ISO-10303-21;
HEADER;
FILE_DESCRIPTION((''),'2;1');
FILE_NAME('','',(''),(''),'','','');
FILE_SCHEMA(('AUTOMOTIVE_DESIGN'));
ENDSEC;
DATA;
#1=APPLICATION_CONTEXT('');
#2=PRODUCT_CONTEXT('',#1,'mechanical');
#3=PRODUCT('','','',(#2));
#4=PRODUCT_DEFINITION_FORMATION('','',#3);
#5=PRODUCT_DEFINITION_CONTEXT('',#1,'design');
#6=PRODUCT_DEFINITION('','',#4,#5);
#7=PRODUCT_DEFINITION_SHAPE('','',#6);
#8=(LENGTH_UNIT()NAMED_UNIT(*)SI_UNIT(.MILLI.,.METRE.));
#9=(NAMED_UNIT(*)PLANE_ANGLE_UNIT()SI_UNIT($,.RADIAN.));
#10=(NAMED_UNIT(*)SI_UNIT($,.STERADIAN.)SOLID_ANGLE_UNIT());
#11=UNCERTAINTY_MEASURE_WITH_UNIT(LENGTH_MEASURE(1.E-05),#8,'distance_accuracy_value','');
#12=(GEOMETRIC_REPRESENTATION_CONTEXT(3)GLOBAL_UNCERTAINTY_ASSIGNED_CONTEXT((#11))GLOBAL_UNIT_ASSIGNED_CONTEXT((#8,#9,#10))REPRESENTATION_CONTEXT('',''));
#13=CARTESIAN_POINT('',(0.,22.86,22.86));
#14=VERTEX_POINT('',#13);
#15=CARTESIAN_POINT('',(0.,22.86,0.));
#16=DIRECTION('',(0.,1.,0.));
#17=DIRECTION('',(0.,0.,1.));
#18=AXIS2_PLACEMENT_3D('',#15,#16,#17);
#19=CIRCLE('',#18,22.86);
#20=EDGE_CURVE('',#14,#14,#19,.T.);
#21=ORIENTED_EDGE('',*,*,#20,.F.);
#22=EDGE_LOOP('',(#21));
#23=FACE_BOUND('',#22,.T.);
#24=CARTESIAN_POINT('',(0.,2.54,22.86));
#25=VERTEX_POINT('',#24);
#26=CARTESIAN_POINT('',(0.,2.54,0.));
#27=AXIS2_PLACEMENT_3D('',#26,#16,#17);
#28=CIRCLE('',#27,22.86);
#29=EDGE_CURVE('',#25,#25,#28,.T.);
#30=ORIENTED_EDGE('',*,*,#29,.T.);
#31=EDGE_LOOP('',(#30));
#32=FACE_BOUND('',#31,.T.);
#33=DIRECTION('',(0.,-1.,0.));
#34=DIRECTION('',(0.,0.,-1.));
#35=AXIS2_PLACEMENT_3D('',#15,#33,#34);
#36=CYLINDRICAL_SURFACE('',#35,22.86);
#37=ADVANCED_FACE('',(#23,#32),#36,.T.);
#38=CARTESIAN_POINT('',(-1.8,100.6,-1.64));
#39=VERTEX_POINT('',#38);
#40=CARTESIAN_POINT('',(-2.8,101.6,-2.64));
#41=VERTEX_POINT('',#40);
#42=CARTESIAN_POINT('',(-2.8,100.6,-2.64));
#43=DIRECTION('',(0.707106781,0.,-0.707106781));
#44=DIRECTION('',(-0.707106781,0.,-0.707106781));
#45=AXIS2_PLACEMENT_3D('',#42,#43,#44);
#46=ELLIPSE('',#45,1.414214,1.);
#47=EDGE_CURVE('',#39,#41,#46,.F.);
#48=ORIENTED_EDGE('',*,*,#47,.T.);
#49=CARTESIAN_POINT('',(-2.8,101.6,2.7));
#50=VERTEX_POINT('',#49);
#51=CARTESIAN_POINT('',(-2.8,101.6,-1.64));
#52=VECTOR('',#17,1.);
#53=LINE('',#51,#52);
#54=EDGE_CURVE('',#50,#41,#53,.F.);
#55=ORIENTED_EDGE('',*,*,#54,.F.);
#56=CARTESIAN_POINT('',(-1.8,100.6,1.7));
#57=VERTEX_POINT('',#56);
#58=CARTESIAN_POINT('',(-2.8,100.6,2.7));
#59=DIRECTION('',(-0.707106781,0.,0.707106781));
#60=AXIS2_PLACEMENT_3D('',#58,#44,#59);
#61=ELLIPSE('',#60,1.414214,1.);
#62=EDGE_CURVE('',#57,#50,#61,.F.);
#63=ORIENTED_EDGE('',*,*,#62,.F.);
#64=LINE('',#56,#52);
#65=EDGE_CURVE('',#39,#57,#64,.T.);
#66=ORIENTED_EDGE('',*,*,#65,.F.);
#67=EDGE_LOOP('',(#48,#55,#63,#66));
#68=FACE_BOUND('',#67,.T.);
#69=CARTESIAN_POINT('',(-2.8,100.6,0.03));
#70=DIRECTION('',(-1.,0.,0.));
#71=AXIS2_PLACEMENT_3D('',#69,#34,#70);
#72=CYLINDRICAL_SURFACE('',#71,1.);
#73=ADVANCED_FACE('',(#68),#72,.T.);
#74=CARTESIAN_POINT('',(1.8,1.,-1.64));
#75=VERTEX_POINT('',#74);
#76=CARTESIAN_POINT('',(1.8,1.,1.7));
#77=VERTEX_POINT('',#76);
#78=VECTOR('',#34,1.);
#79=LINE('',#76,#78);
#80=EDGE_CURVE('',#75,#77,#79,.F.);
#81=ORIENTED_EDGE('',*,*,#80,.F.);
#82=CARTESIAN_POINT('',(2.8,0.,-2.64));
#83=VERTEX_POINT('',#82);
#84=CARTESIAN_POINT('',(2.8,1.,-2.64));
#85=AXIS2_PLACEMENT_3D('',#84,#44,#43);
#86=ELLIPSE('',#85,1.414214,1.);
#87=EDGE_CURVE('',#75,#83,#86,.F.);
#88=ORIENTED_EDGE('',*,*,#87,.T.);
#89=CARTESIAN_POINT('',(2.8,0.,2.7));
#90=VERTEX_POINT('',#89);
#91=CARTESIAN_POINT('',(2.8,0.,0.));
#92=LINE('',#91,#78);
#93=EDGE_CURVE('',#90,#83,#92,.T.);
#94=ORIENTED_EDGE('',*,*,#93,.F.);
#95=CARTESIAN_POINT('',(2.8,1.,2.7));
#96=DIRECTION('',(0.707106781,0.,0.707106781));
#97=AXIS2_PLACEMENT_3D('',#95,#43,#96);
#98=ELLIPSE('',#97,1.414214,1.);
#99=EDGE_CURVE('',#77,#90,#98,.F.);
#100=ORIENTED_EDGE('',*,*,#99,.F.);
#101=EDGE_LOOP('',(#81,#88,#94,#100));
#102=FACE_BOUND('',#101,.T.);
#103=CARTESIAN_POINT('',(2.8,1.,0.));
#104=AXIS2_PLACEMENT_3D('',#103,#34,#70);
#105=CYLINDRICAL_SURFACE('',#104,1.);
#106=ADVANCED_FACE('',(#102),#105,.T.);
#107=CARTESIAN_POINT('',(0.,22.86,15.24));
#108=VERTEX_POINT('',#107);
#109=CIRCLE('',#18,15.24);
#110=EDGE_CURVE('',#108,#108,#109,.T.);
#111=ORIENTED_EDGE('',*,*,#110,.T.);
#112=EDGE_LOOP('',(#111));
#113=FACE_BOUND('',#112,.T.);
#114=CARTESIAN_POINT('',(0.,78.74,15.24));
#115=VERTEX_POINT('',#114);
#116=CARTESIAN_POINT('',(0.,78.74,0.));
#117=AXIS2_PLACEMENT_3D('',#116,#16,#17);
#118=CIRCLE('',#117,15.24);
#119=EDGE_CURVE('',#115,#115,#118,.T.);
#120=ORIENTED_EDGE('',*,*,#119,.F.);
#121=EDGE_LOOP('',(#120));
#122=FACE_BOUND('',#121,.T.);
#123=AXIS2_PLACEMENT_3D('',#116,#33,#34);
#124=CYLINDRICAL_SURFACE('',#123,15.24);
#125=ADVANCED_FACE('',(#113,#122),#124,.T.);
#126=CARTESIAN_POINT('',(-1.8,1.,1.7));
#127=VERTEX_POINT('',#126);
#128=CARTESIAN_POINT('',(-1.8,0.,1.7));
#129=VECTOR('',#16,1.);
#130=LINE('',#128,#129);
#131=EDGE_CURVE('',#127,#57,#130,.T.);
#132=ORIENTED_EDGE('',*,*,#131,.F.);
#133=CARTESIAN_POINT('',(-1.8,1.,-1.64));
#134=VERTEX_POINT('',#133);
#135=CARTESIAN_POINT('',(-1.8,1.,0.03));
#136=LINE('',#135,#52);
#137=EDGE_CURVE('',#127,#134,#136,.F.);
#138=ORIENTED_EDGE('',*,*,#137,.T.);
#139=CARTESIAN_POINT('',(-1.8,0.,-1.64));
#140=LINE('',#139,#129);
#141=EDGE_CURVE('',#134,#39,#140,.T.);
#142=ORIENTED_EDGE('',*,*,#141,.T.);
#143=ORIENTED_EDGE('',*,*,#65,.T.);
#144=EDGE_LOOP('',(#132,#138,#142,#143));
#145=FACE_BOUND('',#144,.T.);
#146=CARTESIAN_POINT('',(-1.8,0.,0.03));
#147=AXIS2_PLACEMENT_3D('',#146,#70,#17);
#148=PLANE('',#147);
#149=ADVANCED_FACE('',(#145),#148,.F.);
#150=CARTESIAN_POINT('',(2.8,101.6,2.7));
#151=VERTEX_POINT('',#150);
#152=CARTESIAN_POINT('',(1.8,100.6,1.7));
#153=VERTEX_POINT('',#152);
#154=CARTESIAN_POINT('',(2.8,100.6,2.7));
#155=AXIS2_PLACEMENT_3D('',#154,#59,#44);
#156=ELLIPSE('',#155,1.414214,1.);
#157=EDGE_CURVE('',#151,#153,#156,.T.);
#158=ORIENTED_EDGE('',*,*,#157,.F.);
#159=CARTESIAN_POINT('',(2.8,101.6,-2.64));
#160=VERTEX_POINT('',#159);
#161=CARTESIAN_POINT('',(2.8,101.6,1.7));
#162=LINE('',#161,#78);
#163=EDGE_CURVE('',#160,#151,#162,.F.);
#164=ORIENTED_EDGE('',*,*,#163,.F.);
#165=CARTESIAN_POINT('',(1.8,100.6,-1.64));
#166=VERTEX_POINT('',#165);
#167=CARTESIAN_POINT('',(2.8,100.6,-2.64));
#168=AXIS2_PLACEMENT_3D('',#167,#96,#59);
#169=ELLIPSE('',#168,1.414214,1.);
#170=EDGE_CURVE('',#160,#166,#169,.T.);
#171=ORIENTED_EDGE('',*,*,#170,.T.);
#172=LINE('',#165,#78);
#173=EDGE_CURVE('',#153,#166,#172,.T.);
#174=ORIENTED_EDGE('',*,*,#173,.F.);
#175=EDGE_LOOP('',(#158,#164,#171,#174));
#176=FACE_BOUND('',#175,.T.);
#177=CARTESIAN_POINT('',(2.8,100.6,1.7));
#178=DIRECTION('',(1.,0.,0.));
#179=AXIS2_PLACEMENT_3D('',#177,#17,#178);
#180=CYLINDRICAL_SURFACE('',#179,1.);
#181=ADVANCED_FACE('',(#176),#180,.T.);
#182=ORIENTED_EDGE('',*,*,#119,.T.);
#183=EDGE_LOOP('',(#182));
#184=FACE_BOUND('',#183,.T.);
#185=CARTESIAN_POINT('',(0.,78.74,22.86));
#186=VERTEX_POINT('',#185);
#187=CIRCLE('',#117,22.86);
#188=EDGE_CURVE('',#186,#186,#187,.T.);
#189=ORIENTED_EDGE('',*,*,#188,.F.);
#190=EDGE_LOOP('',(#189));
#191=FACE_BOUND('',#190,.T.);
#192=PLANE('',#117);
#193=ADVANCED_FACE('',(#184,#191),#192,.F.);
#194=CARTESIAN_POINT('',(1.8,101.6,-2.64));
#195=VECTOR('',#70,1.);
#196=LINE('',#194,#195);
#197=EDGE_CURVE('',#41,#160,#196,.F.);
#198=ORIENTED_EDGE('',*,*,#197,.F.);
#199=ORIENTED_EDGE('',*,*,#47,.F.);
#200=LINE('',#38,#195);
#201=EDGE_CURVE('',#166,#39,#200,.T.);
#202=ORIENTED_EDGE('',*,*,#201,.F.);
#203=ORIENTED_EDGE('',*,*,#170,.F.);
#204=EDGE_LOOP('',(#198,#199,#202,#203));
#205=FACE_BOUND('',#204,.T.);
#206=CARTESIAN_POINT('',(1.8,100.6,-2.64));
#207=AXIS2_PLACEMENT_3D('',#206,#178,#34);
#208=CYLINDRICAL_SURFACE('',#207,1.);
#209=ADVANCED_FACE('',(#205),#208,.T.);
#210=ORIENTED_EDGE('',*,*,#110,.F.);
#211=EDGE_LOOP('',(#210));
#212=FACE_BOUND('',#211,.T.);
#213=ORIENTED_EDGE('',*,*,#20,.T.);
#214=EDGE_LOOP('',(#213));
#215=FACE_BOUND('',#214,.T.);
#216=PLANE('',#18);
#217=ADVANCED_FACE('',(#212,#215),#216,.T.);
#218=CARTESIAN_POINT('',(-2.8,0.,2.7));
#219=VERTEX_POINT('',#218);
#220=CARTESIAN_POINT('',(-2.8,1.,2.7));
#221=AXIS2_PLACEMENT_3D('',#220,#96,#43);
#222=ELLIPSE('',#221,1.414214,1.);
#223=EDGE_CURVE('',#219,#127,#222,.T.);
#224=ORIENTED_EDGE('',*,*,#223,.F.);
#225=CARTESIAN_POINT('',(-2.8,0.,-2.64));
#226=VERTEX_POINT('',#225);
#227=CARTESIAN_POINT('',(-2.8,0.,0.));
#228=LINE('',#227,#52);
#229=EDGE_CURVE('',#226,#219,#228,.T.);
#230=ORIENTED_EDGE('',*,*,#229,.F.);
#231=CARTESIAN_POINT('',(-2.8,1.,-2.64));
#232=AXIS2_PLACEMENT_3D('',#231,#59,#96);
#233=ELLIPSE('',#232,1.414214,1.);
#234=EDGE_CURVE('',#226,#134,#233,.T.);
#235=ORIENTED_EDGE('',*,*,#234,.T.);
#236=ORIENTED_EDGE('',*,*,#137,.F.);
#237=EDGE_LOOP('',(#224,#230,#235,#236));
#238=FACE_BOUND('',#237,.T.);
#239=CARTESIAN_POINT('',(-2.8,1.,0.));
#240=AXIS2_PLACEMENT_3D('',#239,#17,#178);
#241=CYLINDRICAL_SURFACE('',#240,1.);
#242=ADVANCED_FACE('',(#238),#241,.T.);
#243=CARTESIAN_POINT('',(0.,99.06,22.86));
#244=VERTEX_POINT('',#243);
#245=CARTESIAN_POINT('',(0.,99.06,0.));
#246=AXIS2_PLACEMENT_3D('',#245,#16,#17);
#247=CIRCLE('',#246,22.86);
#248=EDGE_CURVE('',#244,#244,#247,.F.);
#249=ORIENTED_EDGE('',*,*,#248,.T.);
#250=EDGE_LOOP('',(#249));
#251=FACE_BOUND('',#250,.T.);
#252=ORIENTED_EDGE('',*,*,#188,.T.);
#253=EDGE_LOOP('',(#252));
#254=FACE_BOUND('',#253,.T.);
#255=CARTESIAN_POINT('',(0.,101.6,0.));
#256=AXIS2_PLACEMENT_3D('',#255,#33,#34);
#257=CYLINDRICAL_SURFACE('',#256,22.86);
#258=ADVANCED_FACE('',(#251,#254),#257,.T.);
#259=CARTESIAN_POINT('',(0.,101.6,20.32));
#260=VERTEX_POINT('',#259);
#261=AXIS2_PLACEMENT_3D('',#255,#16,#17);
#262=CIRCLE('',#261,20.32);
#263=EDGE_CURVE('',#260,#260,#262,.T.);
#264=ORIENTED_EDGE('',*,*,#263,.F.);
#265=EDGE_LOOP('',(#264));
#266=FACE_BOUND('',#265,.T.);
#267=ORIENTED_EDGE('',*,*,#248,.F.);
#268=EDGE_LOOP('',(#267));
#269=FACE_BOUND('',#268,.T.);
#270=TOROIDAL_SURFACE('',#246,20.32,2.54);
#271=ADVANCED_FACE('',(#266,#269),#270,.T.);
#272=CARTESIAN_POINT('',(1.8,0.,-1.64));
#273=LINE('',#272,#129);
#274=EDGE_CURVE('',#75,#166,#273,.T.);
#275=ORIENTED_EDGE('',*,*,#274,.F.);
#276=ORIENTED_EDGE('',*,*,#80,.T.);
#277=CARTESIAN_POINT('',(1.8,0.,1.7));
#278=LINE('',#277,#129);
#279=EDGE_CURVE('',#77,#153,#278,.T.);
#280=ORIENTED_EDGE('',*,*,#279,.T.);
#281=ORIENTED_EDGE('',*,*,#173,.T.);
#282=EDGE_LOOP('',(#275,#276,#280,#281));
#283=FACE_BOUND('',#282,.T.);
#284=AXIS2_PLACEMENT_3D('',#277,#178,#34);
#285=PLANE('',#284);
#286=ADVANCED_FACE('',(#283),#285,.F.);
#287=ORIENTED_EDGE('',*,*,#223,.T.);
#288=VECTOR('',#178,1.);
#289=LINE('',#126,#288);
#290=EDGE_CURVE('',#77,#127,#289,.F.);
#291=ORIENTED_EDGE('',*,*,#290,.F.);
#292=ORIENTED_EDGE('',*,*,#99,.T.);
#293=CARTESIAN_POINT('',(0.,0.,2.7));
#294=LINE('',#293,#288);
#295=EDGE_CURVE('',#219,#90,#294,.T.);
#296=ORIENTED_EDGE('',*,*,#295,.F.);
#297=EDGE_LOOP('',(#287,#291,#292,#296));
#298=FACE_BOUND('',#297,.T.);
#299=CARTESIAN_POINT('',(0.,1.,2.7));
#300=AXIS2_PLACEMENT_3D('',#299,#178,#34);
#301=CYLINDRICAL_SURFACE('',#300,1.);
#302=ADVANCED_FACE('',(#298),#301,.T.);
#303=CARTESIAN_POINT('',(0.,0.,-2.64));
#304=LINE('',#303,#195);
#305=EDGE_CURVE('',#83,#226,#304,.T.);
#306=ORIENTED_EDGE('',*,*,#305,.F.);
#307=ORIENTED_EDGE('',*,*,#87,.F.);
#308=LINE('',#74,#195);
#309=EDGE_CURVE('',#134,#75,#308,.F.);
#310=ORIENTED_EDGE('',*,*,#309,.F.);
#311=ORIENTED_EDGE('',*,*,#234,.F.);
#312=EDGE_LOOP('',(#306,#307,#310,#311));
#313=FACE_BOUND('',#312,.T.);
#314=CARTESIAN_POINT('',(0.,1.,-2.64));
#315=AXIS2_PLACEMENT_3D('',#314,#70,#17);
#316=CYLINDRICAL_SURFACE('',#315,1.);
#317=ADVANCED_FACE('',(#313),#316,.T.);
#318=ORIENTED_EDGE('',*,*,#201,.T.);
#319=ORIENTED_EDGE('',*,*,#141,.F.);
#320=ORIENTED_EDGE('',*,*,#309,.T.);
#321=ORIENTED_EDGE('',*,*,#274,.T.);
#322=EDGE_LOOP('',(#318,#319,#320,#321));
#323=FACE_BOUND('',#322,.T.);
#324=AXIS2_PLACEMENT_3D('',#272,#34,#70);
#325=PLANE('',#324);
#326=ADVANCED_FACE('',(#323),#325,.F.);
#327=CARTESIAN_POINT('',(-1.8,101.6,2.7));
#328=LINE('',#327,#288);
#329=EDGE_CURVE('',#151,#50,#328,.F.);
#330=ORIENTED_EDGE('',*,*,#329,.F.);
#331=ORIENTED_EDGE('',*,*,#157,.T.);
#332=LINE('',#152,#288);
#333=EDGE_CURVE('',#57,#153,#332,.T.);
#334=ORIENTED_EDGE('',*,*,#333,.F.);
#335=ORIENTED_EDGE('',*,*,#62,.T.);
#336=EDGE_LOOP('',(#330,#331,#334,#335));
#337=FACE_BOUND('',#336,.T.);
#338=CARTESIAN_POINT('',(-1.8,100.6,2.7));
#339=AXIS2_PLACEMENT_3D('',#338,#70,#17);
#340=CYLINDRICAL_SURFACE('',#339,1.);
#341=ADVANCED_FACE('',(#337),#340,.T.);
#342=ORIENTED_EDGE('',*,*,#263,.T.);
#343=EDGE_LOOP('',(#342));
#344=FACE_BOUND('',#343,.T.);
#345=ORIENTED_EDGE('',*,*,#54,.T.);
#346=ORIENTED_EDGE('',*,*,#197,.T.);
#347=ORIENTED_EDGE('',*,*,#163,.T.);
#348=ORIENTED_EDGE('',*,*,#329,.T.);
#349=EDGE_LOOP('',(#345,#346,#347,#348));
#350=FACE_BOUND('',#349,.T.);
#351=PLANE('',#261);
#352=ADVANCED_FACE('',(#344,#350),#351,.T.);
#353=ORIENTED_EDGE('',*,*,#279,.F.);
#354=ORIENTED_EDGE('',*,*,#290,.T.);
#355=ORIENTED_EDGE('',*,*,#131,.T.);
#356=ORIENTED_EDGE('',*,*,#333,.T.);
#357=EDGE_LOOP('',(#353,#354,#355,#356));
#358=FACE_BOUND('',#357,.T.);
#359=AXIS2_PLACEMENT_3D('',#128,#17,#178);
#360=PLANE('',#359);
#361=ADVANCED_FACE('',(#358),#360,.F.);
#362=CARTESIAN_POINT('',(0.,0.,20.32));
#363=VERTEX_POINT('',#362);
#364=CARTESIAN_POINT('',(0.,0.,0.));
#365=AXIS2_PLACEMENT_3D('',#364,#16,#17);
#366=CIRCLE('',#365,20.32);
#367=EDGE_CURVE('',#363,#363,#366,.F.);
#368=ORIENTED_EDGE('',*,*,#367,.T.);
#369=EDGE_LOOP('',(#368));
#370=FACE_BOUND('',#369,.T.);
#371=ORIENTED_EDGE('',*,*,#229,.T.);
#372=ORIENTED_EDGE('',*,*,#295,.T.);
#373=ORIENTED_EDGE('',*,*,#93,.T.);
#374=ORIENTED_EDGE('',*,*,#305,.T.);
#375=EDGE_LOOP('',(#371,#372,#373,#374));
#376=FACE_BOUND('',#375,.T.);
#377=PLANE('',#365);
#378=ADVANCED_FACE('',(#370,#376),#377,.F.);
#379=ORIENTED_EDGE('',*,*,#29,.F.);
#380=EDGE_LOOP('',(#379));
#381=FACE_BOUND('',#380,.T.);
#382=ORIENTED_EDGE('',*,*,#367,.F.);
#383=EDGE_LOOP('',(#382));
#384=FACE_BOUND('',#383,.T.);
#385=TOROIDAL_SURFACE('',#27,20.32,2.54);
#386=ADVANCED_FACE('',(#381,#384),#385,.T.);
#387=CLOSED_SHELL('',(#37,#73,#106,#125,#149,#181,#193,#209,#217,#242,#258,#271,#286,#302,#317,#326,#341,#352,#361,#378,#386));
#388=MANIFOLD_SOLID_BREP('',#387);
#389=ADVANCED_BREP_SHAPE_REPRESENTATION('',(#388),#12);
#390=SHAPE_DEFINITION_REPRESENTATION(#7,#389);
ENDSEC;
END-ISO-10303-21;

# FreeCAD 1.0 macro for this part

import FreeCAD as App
import Part
import Sketcher
Q = App.Units.Quantity


def edges_at(feature, points):
    """Names of the edges that pass closest to the given points."""
    edges = feature.Shape.Edges
    near = lambda p: min(range(len(edges)), key=lambda i: edges[i].distToShape(Part.Vertex(*p))[0])
    return sorted({f"Edge{near(p) + 1}" for p in points})


def add_polygon(sketch, points):
    """Adds a closed chain of lines whose ends are joined by coincident constraints."""
    first, n = sketch.GeometryCount, len(points)
    for a, b in zip(points, points[1:] + points[:1]):
        sketch.addGeometry(Part.LineSegment(App.Vector(*a, 0), App.Vector(*b, 0)), False)
    for i in range(n):
        sketch.addConstraint(Sketcher.Constraint("Coincident", first + i, 2, first + (i + 1) % n, 1))

doc = App.newDocument("Part")
body = doc.addObject("PartDesign::Body", "Body")

# Sketch on XZ plane
sketch1 = body.newObject("Sketcher::SketchObject", "Sketch")
sketch1.AttachmentSupport = (doc.getObject("XZ_Plane"), [""])
sketch1.MapMode = "FlatFace"
sketch1.addGeometry(Part.Circle(App.Vector(0, 0, 0), App.Vector(0, 0, 1), 23), False)
sketch1.addConstraint([
    Sketcher.Constraint("Coincident", 0, 3, -1, 1),
    Sketcher.Constraint("Diameter", 0, Q("1.8 in")),
])
pad1 = body.newObject("PartDesign::Pad", "Pad")
pad1.Profile = sketch1
pad1.Length = Q("0.9 in")
pad1.Reversed = True

# Sketch on XZ plane
sketch2 = body.newObject("Sketcher::SketchObject", "Sketch001")
sketch2.AttachmentSupport = (doc.getObject("XZ_Plane"), [""])
sketch2.MapMode = "FlatFace"
sketch2.AttachmentOffset = App.Placement(App.Vector(0, 0, -0.9 * 25.4), App.Rotation())
sketch2.addGeometry(Part.Circle(App.Vector(0, 0, 0), App.Vector(0, 0, 1), 15), False)
sketch2.addConstraint([
    Sketcher.Constraint("Coincident", 0, 3, -1, 1),
    Sketcher.Constraint("Diameter", 0, Q("1.2 in")),
])
pad2 = body.newObject("PartDesign::Pad", "Pad001")
pad2.Profile = sketch2
pad2.Length = Q("2.2 in")
pad2.Reversed = True

# Sketch on XZ plane
sketch3 = body.newObject("Sketcher::SketchObject", "Sketch002")
sketch3.AttachmentSupport = (doc.getObject("XZ_Plane"), [""])
sketch3.MapMode = "FlatFace"
sketch3.AttachmentOffset = App.Placement(App.Vector(0, 0, -3.1 * 25.4), App.Rotation())
sketch3.addGeometry(Part.Circle(App.Vector(0, 0, 0), App.Vector(0, 0, 1), 23), False)
sketch3.addConstraint([
    Sketcher.Constraint("Coincident", 0, 3, -1, 1),
    Sketcher.Constraint("Diameter", 0, Q("1.8 in")),
])
pad3 = body.newObject("PartDesign::Pad", "Pad002")
pad3.Profile = sketch3
pad3.Length = Q("0.9 in")
pad3.Reversed = True
doc.recompute()

fillet = body.newObject("PartDesign::Fillet", "Fillet")
fillet.Base = (pad3, edges_at(pad3, [(-22.86, 101.6, 0), (-22.86, 0, 0)]))
fillet.Radius = Q("0.1 in")

# Sketch on XZ plane
sketch4 = body.newObject("Sketcher::SketchObject", "Sketch003")
sketch4.AttachmentSupport = (doc.getObject("XZ_Plane"), [""])
sketch4.MapMode = "FlatFace"
sketch4.AttachmentOffset = App.Placement(App.Vector(0, 0, -4 * 25.4), App.Rotation())
add_polygon(sketch4, [(-1.8, 1.7), (1.8, 1.7), (1.8, -1.6), (-1.8, -1.6)])  # lines 0-3
sketch4.addConstraint([
    Sketcher.Constraint("Horizontal", 0),
    Sketcher.Constraint("Vertical", 1),
    Sketcher.Constraint("Horizontal", 2),
    Sketcher.Constraint("Vertical", 3),
    Sketcher.Constraint("DistanceX", 0, 1, 0, 2, 3.6),
    Sketcher.Constraint("DistanceY", 1, 2, 1, 1, 3.34),
    Sketcher.Constraint("DistanceX", -1, 1, 0, 2, 1.8),
    Sketcher.Constraint("DistanceY", -1, 1, 0, 2, 1.7),
])
pocket1 = body.newObject("PartDesign::Pocket", "Pocket")
pocket1.Profile = sketch4
pocket1.Type = "ThroughAll"
pocket1.Reversed = True
doc.recompute()

fillet2 = body.newObject("PartDesign::Fillet", "Fillet001")
fillet2.Base = (pocket1, edges_at(pocket1, [
    (0, 0, -1.64),
    (1.8, 0, 0.03),
    (0, 0, 1.7),
    (-1.8, 0, 0.03),
    (0, 101.6, -1.64),
    (-1.8, 101.6, 0.03),
    (0, 101.6, 1.7),
    (1.8, 101.6, 0.03),
]))
fillet2.Radius = 1

doc.recompute()
